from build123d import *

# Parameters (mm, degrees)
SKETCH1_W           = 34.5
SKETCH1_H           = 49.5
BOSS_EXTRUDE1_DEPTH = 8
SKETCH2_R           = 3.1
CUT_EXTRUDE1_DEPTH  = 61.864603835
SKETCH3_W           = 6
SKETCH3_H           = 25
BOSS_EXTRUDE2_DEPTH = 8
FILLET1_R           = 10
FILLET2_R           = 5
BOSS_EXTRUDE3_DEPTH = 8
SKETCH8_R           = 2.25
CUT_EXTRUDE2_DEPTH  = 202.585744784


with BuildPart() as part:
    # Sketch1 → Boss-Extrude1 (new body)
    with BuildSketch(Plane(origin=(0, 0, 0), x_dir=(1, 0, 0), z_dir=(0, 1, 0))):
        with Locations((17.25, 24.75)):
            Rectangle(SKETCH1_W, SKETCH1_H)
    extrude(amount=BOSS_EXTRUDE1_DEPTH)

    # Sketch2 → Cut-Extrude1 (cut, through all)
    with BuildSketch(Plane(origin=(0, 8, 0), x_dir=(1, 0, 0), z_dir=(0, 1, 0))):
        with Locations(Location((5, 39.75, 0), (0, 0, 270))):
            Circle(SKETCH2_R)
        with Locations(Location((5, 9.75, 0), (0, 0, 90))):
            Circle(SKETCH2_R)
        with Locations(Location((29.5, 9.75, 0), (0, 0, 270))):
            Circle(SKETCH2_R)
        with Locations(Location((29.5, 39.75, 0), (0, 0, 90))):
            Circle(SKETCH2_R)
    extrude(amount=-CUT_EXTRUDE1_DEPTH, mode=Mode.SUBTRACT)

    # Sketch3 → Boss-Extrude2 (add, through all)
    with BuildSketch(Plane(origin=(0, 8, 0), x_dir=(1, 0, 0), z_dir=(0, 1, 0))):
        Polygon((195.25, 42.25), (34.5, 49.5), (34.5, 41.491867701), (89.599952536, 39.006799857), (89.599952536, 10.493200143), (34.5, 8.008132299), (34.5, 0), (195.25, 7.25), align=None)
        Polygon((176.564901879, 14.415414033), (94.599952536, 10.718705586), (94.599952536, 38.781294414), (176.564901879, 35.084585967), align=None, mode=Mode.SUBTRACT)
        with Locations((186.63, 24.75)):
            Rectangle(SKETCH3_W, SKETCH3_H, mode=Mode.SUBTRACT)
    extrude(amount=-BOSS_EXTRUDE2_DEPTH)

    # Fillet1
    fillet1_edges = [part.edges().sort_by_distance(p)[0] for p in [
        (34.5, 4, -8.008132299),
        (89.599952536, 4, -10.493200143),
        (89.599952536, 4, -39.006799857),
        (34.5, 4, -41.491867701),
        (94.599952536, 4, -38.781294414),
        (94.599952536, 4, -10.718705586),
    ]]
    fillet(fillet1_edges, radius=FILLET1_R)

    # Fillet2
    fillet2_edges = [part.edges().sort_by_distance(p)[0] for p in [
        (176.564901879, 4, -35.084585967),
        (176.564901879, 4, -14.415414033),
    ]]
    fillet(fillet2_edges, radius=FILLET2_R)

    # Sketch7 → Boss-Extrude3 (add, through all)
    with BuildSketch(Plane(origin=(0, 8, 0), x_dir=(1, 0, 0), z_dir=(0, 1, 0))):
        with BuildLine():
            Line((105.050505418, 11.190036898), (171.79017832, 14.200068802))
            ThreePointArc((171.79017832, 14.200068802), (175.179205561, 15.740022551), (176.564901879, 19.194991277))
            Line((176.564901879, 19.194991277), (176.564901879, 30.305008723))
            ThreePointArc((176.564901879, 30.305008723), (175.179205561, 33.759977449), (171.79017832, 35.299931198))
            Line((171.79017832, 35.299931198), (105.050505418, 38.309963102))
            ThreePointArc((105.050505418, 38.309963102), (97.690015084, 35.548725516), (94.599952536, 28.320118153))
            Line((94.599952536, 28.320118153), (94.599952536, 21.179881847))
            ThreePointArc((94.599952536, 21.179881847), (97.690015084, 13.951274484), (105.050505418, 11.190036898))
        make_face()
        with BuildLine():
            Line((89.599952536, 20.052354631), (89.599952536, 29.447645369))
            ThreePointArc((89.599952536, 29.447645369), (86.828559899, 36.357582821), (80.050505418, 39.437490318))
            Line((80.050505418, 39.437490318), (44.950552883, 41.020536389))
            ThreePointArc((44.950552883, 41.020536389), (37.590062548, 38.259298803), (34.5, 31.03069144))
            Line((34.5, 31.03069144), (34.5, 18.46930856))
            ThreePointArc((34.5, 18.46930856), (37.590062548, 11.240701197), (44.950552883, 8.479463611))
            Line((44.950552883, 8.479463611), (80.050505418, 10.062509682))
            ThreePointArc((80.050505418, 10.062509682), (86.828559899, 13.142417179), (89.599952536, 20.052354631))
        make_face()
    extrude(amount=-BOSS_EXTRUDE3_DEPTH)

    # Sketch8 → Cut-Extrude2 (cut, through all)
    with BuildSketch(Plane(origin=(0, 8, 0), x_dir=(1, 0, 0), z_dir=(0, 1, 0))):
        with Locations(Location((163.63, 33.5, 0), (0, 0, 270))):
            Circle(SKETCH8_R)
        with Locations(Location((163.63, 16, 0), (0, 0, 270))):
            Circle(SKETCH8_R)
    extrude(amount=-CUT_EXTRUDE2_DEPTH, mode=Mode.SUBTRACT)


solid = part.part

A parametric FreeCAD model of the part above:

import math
import FreeCAD as App
import Part
import Sketcher
Q = App.Units.Quantity


def edges_at(feature, points):
    """Names of the edges that pass closest to the given points."""
    edges = feature.Shape.Edges
    near = lambda p: min(range(len(edges)), key=lambda i: edges[i].distToShape(Part.Vertex(*p))[0])
    return sorted({f"Edge{near(p) + 1}" for p in points})


def add_polygon(sketch, points):
    """Adds a closed chain of lines whose ends are joined by coincident constraints."""
    first, n = sketch.GeometryCount, len(points)
    for a, b in zip(points, points[1:] + points[:1]):
        sketch.addGeometry(Part.LineSegment(App.Vector(*a, 0), App.Vector(*b, 0)), False)
    for i in range(n):
        sketch.addConstraint(Sketcher.Constraint("Coincident", first + i, 2, first + (i + 1) % n, 1))

doc = App.newDocument("Part")
body = doc.addObject("PartDesign::Body", "Body")

# Sketch on XZ plane
sketch1 = body.newObject("Sketcher::SketchObject", "Sketch")
sketch1.AttachmentSupport = (doc.getObject("XZ_Plane"), [""])
sketch1.MapMode = "FlatFace"
add_polygon(sketch1, [(0, -50), (0, 0), (34, 0), (34, -50)])  # lines 0-3
sketch1.addConstraint([
    Sketcher.Constraint("Vertical", 0),
    Sketcher.Constraint("Horizontal", 1),
    Sketcher.Constraint("Vertical", 2),
    Sketcher.Constraint("Horizontal", 3),
    Sketcher.Constraint("Coincident", 0, 2, -1, 1),
    Sketcher.Constraint("DistanceX", 1, 1, 1, 2, Q("34.5 mm")),
    Sketcher.Constraint("DistanceY", 0, 1, 0, 2, Q("49.5 mm")),
])
pad1 = body.newObject("PartDesign::Pad", "Pad")
pad1.Profile = sketch1
pad1.Length = 8
pad1.Reversed = True

# Sketch on XZ plane
sketch2 = body.newObject("Sketcher::SketchObject", "Sketch001")
sketch2.AttachmentSupport = (doc.getObject("XZ_Plane"), [""])
sketch2.MapMode = "FlatFace"
sketch2.AttachmentOffset = App.Placement(App.Vector(0, 0, -8), App.Rotation())
sketch2.addGeometry([
    Part.Circle(App.Vector(5, -39.8, 0), App.Vector(0, 0, 1), 3.1),
    Part.Circle(App.Vector(5, -9.8, 0), App.Vector(0, 0, 1), 3.1),
    Part.Circle(App.Vector(29.5, -9.8, 0), App.Vector(0, 0, 1), 3.1),
    Part.Circle(App.Vector(29.5, -39.8, 0), App.Vector(0, 0, 1), 3.1),
], False)
sketch2.addConstraint([
    Sketcher.Constraint("Equal", 0, 1),
    Sketcher.Constraint("Equal", 1, 2),
    Sketcher.Constraint("Equal", 2, 3),
    Sketcher.Constraint("Horizontal", 1, 3, 2, 3),
    Sketcher.Constraint("Horizontal", 0, 3, 3, 3),
    Sketcher.Constraint("Vertical", 0, 3, 1, 3),
    Sketcher.Constraint("Vertical", 2, 3, 3, 3),
    Sketcher.Constraint("Diameter", 0, Q("6.2 mm")),
    Sketcher.Constraint("DistanceX", -1, 1, 0, 3, Q("5 mm")),
    Sketcher.Constraint("DistanceY", 0, 3, 1, 3, Q("30 mm")),
    Sketcher.Constraint("DistanceX", -1, 1, 2, 3, Q("29.5 mm")),
    Sketcher.Constraint("DistanceY", 0, 3, -1, 1, Q("39.75 mm")),
])
pocket1 = body.newObject("PartDesign::Pocket", "Pocket")
pocket1.Profile = sketch2
pocket1.Type = "ThroughAll"
pocket1.Reversed = True

# Sketch on XZ plane
sketch3 = body.newObject("Sketcher::SketchObject", "Sketch002")
sketch3.AttachmentSupport = (doc.getObject("XZ_Plane"), [""])
sketch3.MapMode = "FlatFace"
sketch3.AttachmentOffset = App.Placement(App.Vector(0, 0, -8), App.Rotation())
add_polygon(sketch3, [(195, -42), (34, -50), (34, -41), (90, -39), (90, -10), (34, -8), (34, 0), (195, -7)])  # lines 0-7
add_polygon(sketch3, [(177, -35), (177, -14), (95, -11), (95, -39)])  # lines 8-11
add_polygon(sketch3, [(190, -12), (184, -12), (184, -37), (190, -37)])  # lines 12-15
sketch3.addConstraint([
    Sketcher.Constraint("Vertical", 1),
    Sketcher.Constraint("Vertical", 3),
    Sketcher.Constraint("Vertical", 5),
    Sketcher.Constraint("Vertical", 7),
    Sketcher.Constraint("Vertical", 8),
    Sketcher.Constraint("Vertical", 10),
    Sketcher.Constraint("Horizontal", 12),
    Sketcher.Constraint("Vertical", 13),
    Sketcher.Constraint("Horizontal", 14),
    Sketcher.Constraint("Vertical", 15),
    Sketcher.Constraint("PointOnObject", 5, 2, -1),
    Sketcher.Constraint("Parallel", 0, 2),
    Sketcher.Constraint("Parallel", 4, 6),
    Sketcher.Constraint("Parallel", 6, 9),
    Sketcher.Constraint("Parallel", 2, 11),
    Sketcher.Constraint("Vertical", 1, 2, 4, 2),
    Sketcher.Constraint("Equal", 1, 5),
    Sketcher.Constraint("Equal", 2, 4),
    Sketcher.Constraint("DistanceX", 12, 2, 12, 1, Q("6 mm")),
    Sketcher.Constraint("DistanceY", 7, 2, 7, 1, Q("35 mm")),
    Sketcher.Constraint("DistanceY", 13, 2, 13, 1, Q("25 mm")),
    Sketcher.Constraint("DistanceX", 3, 2, 9, 2, Q("5 mm")),
    Sketcher.Constraint("DistanceY", 12, 2, 6, 2, Q("5 mm")),
    Sketcher.Constraint("DistanceX", -1, 1, 0, 2, Q("34.5 mm")),
    Sketcher.Constraint("DistanceY", 0, 2, -1, 1, Q("49.5 mm")),
    Sketcher.Constraint("DistanceX", -1, 1, 6, 2, Q("195.25 mm")),
    Sketcher.Constraint("DistanceX", -1, 1, 12, 2, Q("183.63 mm")),
    Sketcher.Constraint("DistanceY", 3, 1, 3, 2, Q("28.5136 mm")),
    Sketcher.Constraint("DistanceY", 8, 1, 8, 2, Q("20.669172 mm")),
    Sketcher.Constraint("DistanceY", 10, 2, 10, 1, Q("28.062589 mm")),
    Sketcher.Constraint("DistanceX", -1, 1, 8, 2, Q("176.564902 mm")),
    Sketcher.Constraint("DistanceY", 8, 2, 4, 2, Q("6.407282 mm")),
])
pad2 = body.newObject("PartDesign::Pad", "Pad001")
pad2.Profile = sketch3
pad2.Length = 8
doc.recompute()

fillet = body.newObject("PartDesign::Fillet", "Fillet")
fillet.Base = (pad2, edges_at(pad2, [
    (34.5, 4, -8.008),
    (89.6, 4, -10.493),
    (89.6, 4, -39.007),
    (34.5, 4, -41.492),
    (94.6, 4, -38.781),
    (94.6, 4, -10.719),
]))
fillet.Radius = 10
doc.recompute()

fillet2 = body.newObject("PartDesign::Fillet", "Fillet001")
fillet2.Base = (fillet, edges_at(fillet, [(176.565, 4, -35.085), (176.565, 4, -14.415)]))
fillet2.Radius = 5

# Sketch on XZ plane
sketch4 = body.newObject("Sketcher::SketchObject", "Sketch003")
sketch4.AttachmentSupport = (doc.getObject("XZ_Plane"), [""])
sketch4.MapMode = "FlatFace"
sketch4.AttachmentOffset = App.Placement(App.Vector(0, 0, -8), App.Rotation())
sketch4.addGeometry([
    Part.LineSegment(App.Vector(105, -11, 0), App.Vector(172, -14, 0)),  # 0
    Part.ArcOfCircle(Part.Circle(App.Vector(172, -19, 0), App.Vector(0, 0, 1), 5), math.radians(0), math.radians(87)),  # 1
    Part.LineSegment(App.Vector(177, -19, 0), App.Vector(177, -30, 0)),  # 2
    Part.ArcOfCircle(Part.Circle(App.Vector(172, -30, 0), App.Vector(0, 0, 1), 5), math.radians(-87), math.radians(0)),  # 3
    Part.LineSegment(App.Vector(172, -35, 0), App.Vector(105, -38, 0)),  # 4
    Part.ArcOfCircle(Part.Circle(App.Vector(105, -28, 0), App.Vector(0, 0, 1), 10), math.radians(180), math.radians(273)),  # 5
    Part.LineSegment(App.Vector(95, -28, 0), App.Vector(95, -21, 0)),  # 6
    Part.ArcOfCircle(Part.Circle(App.Vector(105, -21, 0), App.Vector(0, 0, 1), 10), math.radians(87), math.radians(180)),  # 7
    Part.LineSegment(App.Vector(90, -20, 0), App.Vector(90, -29, 0)),  # 8
    Part.ArcOfCircle(Part.Circle(App.Vector(80, -29, 0), App.Vector(0, 0, 1), 10), math.radians(-87), math.radians(0)),  # 9
    Part.LineSegment(App.Vector(80, -39, 0), App.Vector(45, -41, 0)),  # 10
    Part.ArcOfCircle(Part.Circle(App.Vector(45, -31, 0), App.Vector(0, 0, 1), 10), math.radians(180), math.radians(273)),  # 11
    Part.LineSegment(App.Vector(34, -31, 0), App.Vector(34, -18, 0)),  # 12
    Part.ArcOfCircle(Part.Circle(App.Vector(45, -18, 0), App.Vector(0, 0, 1), 10), math.radians(87), math.radians(180)),  # 13
    Part.LineSegment(App.Vector(45, -8, 0), App.Vector(80, -10, 0)),  # 14
    Part.ArcOfCircle(Part.Circle(App.Vector(80, -20, 0), App.Vector(0, 0, 1), 10), math.radians(0), math.radians(87)),  # 15
], False)
sketch4.addConstraint([
    Sketcher.Constraint("Tangent", 0, 2, 1, 2),
    Sketcher.Constraint("Tangent", 1, 1, 2, 1),
    Sketcher.Constraint("Tangent", 2, 2, 3, 2),
    Sketcher.Constraint("Tangent", 3, 1, 4, 1),
    Sketcher.Constraint("Tangent", 4, 2, 5, 2),
    Sketcher.Constraint("Tangent", 5, 1, 6, 1),
    Sketcher.Constraint("Tangent", 6, 2, 7, 2),
    Sketcher.Constraint("Tangent", 7, 1, 0, 1),
    Sketcher.Constraint("Tangent", 8, 2, 9, 2),
    Sketcher.Constraint("Tangent", 9, 1, 10, 1),
    Sketcher.Constraint("Tangent", 10, 2, 11, 2),
    Sketcher.Constraint("Tangent", 11, 1, 12, 1),
    Sketcher.Constraint("Tangent", 12, 2, 13, 2),
    Sketcher.Constraint("Tangent", 13, 1, 14, 1),
    Sketcher.Constraint("Tangent", 14, 2, 15, 2),
    Sketcher.Constraint("Tangent", 15, 1, 8, 1),
    Sketcher.Constraint("Vertical", 2),
    Sketcher.Constraint("Vertical", 6),
    Sketcher.Constraint("Vertical", 8),
    Sketcher.Constraint("Vertical", 12),
    Sketcher.Constraint("Equal", 1, 3),
    Sketcher.Constraint("Equal", 5, 7),
    Sketcher.Constraint("Equal", 7, 9),
    Sketcher.Constraint("Equal", 9, 11),
    Sketcher.Constraint("Equal", 11, 13),
    Sketcher.Constraint("Equal", 13, 15),
    Sketcher.Constraint("Parallel", 4, 10),
    Sketcher.Constraint("Parallel", 0, 14),
    Sketcher.Constraint("Vertical", 0, 2, 3, 1),
    Sketcher.Constraint("Radius", 1, Q("5 mm")),
    Sketcher.Constraint("Radius", 5, Q("10 mm")),
    Sketcher.Constraint("DistanceX", 9, 3, 5, 3, Q("25 mm")),
    Sketcher.Constraint("DistanceX", -1, 1, 11, 3, Q("44.5 mm")),
    Sketcher.Constraint("DistanceY", 8, 2, 8, 1, Q("9.395291 mm")),
    Sketcher.Constraint("DistanceX", -1, 1, 1, 3, Q("171.564902 mm")),
    Sketcher.Constraint("DistanceY", 11, 3, 1, 3, Q("11.8357 mm")),
    Sketcher.Constraint("DistanceX", 10, 2, 9, 3, Q("34.6494 mm")),
    Sketcher.Constraint("DistanceY", 9, 1, 11, 1, Q("8.406799 mm")),
    Sketcher.Constraint("DistanceY", 2, 2, 2, 1, Q("11.110017 mm")),
    Sketcher.Constraint("DistanceY", 1, 3, -1, 1, Q("19.194991 mm")),
])
pad3 = body.newObject("PartDesign::Pad", "Pad002")
pad3.Profile = sketch4
pad3.Length = 8

# Sketch on XZ plane
sketch5 = body.newObject("Sketcher::SketchObject", "Sketch004")
sketch5.AttachmentSupport = (doc.getObject("XZ_Plane"), [""])
sketch5.MapMode = "FlatFace"
sketch5.AttachmentOffset = App.Placement(App.Vector(0, 0, -8), App.Rotation())
sketch5.addGeometry([
    Part.Circle(App.Vector(163.6, -33.5, 0), App.Vector(0, 0, 1), 2.2),
    Part.Circle(App.Vector(163.6, -16, 0), App.Vector(0, 0, 1), 2.2),
], False)
sketch5.addConstraint([
    Sketcher.Constraint("Equal", 0, 1),
    Sketcher.Constraint("Vertical", 0, 3, 1, 3),
    Sketcher.Constraint("Diameter", 0, Q("4.5 mm")),
    Sketcher.Constraint("DistanceY", 1, 3, -1, 1, Q("16 mm")),
    Sketcher.Constraint("DistanceY", 0, 3, -1, 1, Q("33.5 mm")),
    Sketcher.Constraint("DistanceX", -1, 1, 0, 3, Q("163.63 mm")),
])
pocket2 = body.newObject("PartDesign::Pocket", "Pocket001")
pocket2.Profile = sketch5
pocket2.Type = "ThroughAll"
pocket2.Reversed = True

doc.recompute()
